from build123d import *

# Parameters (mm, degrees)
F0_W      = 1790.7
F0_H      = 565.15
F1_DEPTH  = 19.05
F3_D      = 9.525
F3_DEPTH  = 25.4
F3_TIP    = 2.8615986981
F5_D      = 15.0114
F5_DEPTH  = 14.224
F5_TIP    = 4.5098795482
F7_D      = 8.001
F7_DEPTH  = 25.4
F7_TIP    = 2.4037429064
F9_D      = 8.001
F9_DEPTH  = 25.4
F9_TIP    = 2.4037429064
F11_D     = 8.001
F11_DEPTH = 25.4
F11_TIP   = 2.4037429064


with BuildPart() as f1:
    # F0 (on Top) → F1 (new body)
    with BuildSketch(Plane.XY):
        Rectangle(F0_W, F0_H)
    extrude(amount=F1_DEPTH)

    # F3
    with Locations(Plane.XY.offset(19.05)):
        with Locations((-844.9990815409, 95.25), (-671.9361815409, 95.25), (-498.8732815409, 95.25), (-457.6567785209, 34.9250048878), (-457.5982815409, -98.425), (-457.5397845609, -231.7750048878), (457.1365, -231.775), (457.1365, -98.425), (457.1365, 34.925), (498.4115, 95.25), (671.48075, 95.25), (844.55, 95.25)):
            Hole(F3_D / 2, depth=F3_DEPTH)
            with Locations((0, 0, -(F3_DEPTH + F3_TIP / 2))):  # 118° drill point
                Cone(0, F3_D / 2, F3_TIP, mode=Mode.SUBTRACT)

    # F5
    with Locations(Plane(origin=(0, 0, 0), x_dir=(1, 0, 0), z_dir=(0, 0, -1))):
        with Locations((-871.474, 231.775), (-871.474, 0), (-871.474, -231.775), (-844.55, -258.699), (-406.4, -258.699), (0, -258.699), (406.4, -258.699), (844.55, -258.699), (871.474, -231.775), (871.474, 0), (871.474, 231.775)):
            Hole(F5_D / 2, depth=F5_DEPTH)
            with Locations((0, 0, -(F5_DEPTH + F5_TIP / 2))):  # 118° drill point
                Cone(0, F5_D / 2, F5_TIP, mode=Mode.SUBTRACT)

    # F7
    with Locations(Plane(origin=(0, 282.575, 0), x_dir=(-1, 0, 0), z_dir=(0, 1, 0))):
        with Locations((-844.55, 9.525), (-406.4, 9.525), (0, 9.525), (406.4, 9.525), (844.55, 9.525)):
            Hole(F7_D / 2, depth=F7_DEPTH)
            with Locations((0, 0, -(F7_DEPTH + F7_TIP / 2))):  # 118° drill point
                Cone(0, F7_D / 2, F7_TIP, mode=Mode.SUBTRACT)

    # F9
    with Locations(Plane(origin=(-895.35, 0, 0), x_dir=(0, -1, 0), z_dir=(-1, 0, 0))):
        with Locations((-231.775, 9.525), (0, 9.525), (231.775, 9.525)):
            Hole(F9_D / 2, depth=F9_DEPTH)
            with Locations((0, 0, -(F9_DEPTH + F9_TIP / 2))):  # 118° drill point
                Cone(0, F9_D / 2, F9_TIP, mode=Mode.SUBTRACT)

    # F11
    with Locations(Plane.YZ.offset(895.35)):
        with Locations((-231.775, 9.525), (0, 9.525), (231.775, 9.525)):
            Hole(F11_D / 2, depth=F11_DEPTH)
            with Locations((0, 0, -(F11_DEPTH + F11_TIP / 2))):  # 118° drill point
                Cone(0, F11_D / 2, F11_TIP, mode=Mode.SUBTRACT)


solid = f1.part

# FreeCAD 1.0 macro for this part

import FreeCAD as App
import Part
import Sketcher
from FreeCAD import Vector
Q = App.Units.Quantity

doc = App.newDocument("Part")
body = doc.addObject("PartDesign::Body", "Body")

sketch1 = body.newObject("Sketcher::SketchObject", "Sketch")
sketch1.AttachmentSupport = (doc.getObject("XY_Plane"), [""])
sketch1.MapMode = "FlatFace"
sketch1.addGeometry([
    Part.LineSegment(Vector(-895, 283, 0), Vector(-895, -283, 0)),
    Part.LineSegment(Vector(-895, -283, 0), Vector(895, -283, 0)),
    Part.LineSegment(Vector(895, -283, 0), Vector(895, 283, 0)),
    Part.LineSegment(Vector(895, 283, 0), Vector(-895, 283, 0)),
], False)
sketch1.addConstraint([
    Sketcher.Constraint("Coincident", 0, 2, 1, 1),
    Sketcher.Constraint("Coincident", 1, 2, 2, 1),
    Sketcher.Constraint("Coincident", 2, 2, 3, 1),
    Sketcher.Constraint("Coincident", 3, 2, 0, 1),
    Sketcher.Constraint("Vertical", 0),
    Sketcher.Constraint("Horizontal", 1),
    Sketcher.Constraint("Vertical", 2),
    Sketcher.Constraint("Horizontal", 3),
    Sketcher.Constraint("Symmetric", 0, 2, 2, 2, -1, 1),
    Sketcher.Constraint("DistanceX", 1, 1, 1, 2, Q("70.5 in")),
    Sketcher.Constraint("DistanceY", 0, 2, 0, 1, Q("22.25 in")),
])
pad1 = body.newObject("PartDesign::Pad", "Pad")
pad1.Profile = sketch1
pad1.Length = Q("0.75 in")

sketch2 = body.newObject("Sketcher::SketchObject", "Sketch001")
sketch2.AttachmentSupport = (doc.getObject("XY_Plane"), [""])
sketch2.MapMode = "FlatFace"
sketch2.AttachmentOffset = App.Placement(Vector(0, 0, 0.75 * 25.4), App.Rotation())
sketch2.addGeometry([
    Part.Circle(Vector(-845, 95.2, 0), Vector(0, 0, 1), 4.8),
    Part.Circle(Vector(-671.9, 95.2, 0), Vector(0, 0, 1), 4.8),
    Part.Circle(Vector(-498.9, 95.2, 0), Vector(0, 0, 1), 4.8),
    Part.Circle(Vector(-457.7, 34.9, 0), Vector(0, 0, 1), 4.8),
    Part.Circle(Vector(-457.6, -98.4, 0), Vector(0, 0, 1), 4.8),
    Part.Circle(Vector(-457.5, -231.8, 0), Vector(0, 0, 1), 4.8),
    Part.Circle(Vector(457.1, -231.8, 0), Vector(0, 0, 1), 4.8),
    Part.Circle(Vector(457.1, -98.4, 0), Vector(0, 0, 1), 4.8),
    Part.Circle(Vector(457.1, 34.9, 0), Vector(0, 0, 1), 4.8),
    Part.Circle(Vector(498.4, 95.2, 0), Vector(0, 0, 1), 4.8),
    Part.Circle(Vector(671.5, 95.2, 0), Vector(0, 0, 1), 4.8),
    Part.Circle(Vector(844.5, 95.2, 0), Vector(0, 0, 1), 4.8),
], False)
sketch2.addConstraint([
    Sketcher.Constraint("Equal", 0, 1),
    Sketcher.Constraint("Equal", 1, 2),
    Sketcher.Constraint("Equal", 2, 3),
    Sketcher.Constraint("Equal", 3, 4),
    Sketcher.Constraint("Equal", 4, 5),
    Sketcher.Constraint("Equal", 5, 6),
    Sketcher.Constraint("Equal", 6, 7),
    Sketcher.Constraint("Equal", 7, 8),
    Sketcher.Constraint("Equal", 8, 9),
    Sketcher.Constraint("Equal", 9, 10),
    Sketcher.Constraint("Equal", 10, 11),
    Sketcher.Constraint("Horizontal", 0, 3, 1, 3),
    Sketcher.Constraint("Horizontal", 1, 3, 2, 3),
    Sketcher.Constraint("Horizontal", 4, 3, 7, 3),
    Sketcher.Constraint("Horizontal", 2, 3, 9, 3),
    Sketcher.Constraint("Horizontal", 9, 3, 10, 3),
    Sketcher.Constraint("Horizontal", 10, 3, 11, 3),
    Sketcher.Constraint("Vertical", 6, 3, 7, 3),
    Sketcher.Constraint("Vertical", 7, 3, 8, 3),
    Sketcher.Constraint("Diameter", 0, Q("0.375 in")),
    Sketcher.Constraint("DistanceY", 6, 3, 3, 3, Q("10.5000002 in")),
    Sketcher.Constraint("DistanceY", 6, 3, 8, 3, Q("10.5 in")),
    Sketcher.Constraint("DistanceY", 5, 3, 8, 3, Q("10.5000002 in")),
    Sketcher.Constraint("DistanceY", -1, 1, 0, 3, Q("3.75 in")),
    Sketcher.Constraint("DistanceX", -1, 1, 11, 3, Q("33.25 in")),
    Sketcher.Constraint("DistanceY", 4, 3, 3, 3, Q("5.2500002 in")),
    Sketcher.Constraint("DistanceY", -1, 1, 3, 3, Q("1.3750002 in")),
    Sketcher.Constraint("DistanceX", 0, 3, 2, 3, Q("13.627 in")),
    Sketcher.Constraint("DistanceX", 2, 3, 4, 3, Q("1.625 in")),
    Sketcher.Constraint("DistanceX", 8, 3, 9, 3, Q("1.625 in")),
    Sketcher.Constraint("DistanceX", -1, 1, 6, 3, Q("17.9975 in")),
    Sketcher.Constraint("DistanceX", 0, 3, 1, 3, Q("6.8135 in")),
    Sketcher.Constraint("DistanceX", 0, 3, -1, 1, 844.999082),
    Sketcher.Constraint("DistanceX", 3, 3, -1, 1, 457.656779),
    Sketcher.Constraint("DistanceX", -1, 1, 10, 3, 671.48075),
    Sketcher.Constraint("DistanceX", 5, 3, -1, 1, 457.539785),
])
doc.recompute()
hole = body.newObject("PartDesign::Hole", "Hole")
hole.Profile = sketch2
hole.ThreadType = "None"
hole.Diameter = Q("0.375 in")
hole.DepthType = "Dimension"
hole.Depth = Q("1 in")
hole.DrillPoint = "Angled"
hole.DrillPointAngle = 118

sketch3 = body.newObject("Sketcher::SketchObject", "Sketch002")
sketch3.AttachmentSupport = (doc.getObject("XY_Plane"), [""])
sketch3.MapMode = "FlatFace"
sketch3.addGeometry([
    Part.Circle(Vector(-871, -232, 0), Vector(0, 0, 1), 8),
    Part.Circle(Vector(-871, 0, 0), Vector(0, 0, 1), 8),
    Part.Circle(Vector(-871, 232, 0), Vector(0, 0, 1), 8),
    Part.Circle(Vector(-845, 259, 0), Vector(0, 0, 1), 8),
    Part.Circle(Vector(-406, 259, 0), Vector(0, 0, 1), 8),
    Part.Circle(Vector(0, 259, 0), Vector(0, 0, 1), 8),
    Part.Circle(Vector(406, 259, 0), Vector(0, 0, 1), 8),
    Part.Circle(Vector(845, 259, 0), Vector(0, 0, 1), 8),
    Part.Circle(Vector(871, 232, 0), Vector(0, 0, 1), 8),
    Part.Circle(Vector(871, 0, 0), Vector(0, 0, 1), 8),
    Part.Circle(Vector(871, -232, 0), Vector(0, 0, 1), 8),
], False)
sketch3.addConstraint([
    Sketcher.Constraint("Equal", 0, 1),
    Sketcher.Constraint("Equal", 1, 2),
    Sketcher.Constraint("Equal", 2, 3),
    Sketcher.Constraint("Equal", 3, 4),
    Sketcher.Constraint("Equal", 4, 5),
    Sketcher.Constraint("Equal", 5, 6),
    Sketcher.Constraint("Equal", 6, 7),
    Sketcher.Constraint("Equal", 7, 8),
    Sketcher.Constraint("Equal", 8, 9),
    Sketcher.Constraint("Equal", 9, 10),
    Sketcher.Constraint("Symmetric", 0, 3, 8, 3, -1, 1),
    Sketcher.Constraint("Symmetric", 1, 3, 9, 3, -1, 1),
    Sketcher.Constraint("Symmetric", 2, 3, 10, 3, -1, 1),
    Sketcher.Constraint("Symmetric", 4, 3, 6, 3, -2),
    Sketcher.Constraint("Symmetric", 3, 3, 7, 3, -2),
    Sketcher.Constraint("Symmetric", 2, 3, 8, 3, -2),
    Sketcher.Constraint("PointOnObject", 1, 3, -1),
    Sketcher.Constraint("PointOnObject", 5, 3, -2),
    Sketcher.Constraint("Horizontal", 3, 3, 4, 3),
    Sketcher.Constraint("Horizontal", 4, 3, 5, 3),
    Sketcher.Constraint("Vertical", 0, 3, 1, 3),
    Sketcher.Constraint("Diameter", 0, Q("0.591 in")),
    Sketcher.Constraint("DistanceX", 4, 3, -1, 1, Q("16 in")),
    Sketcher.Constraint("DistanceX", 3, 3, 7, 3, Q("66.5 in")),
    Sketcher.Constraint("DistanceX", 0, 3, -1, 1, Q("34.31 in")),
    Sketcher.Constraint("DistanceY", 0, 3, 2, 3, Q("18.25 in")),
    Sketcher.Constraint("DistanceY", 2, 3, 3, 3, Q("1.06 in")),
])
doc.recompute()
hole2 = body.newObject("PartDesign::Hole", "Hole001")
hole2.Profile = sketch3
hole2.ThreadType = "None"
hole2.Diameter = Q("0.591 in")
hole2.DepthType = "Dimension"
hole2.Depth = Q("0.56 in")
hole2.DrillPoint = "Angled"
hole2.DrillPointAngle = 118
hole2.Reversed = True

sketch4 = body.newObject("Sketcher::SketchObject", "Sketch003")
sketch4.AttachmentSupport = (doc.getObject("XZ_Plane"), [""])
sketch4.MapMode = "FlatFace"
sketch4.AttachmentOffset = App.Placement(Vector(0, 0, -11.125 * 25.4), App.Rotation())
sketch4.addGeometry([
    Part.Circle(Vector(844.5, 9.5, 0), Vector(0, 0, 1), 4),
    Part.Circle(Vector(406.4, 9.5, 0), Vector(0, 0, 1), 4),
    Part.Circle(Vector(0, 9.5, 0), Vector(0, 0, 1), 4),
    Part.Circle(Vector(-406.4, 9.5, 0), Vector(0, 0, 1), 4),
    Part.Circle(Vector(-844.5, 9.5, 0), Vector(0, 0, 1), 4),
], False)
sketch4.addConstraint([
    Sketcher.Constraint("Equal", 0, 1),
    Sketcher.Constraint("Equal", 1, 2),
    Sketcher.Constraint("Equal", 2, 3),
    Sketcher.Constraint("Equal", 3, 4),
    Sketcher.Constraint("Symmetric", 1, 3, 3, 3, -2),
    Sketcher.Constraint("Symmetric", 0, 3, 4, 3, -2),
    Sketcher.Constraint("PointOnObject", 2, 3, -2),
    Sketcher.Constraint("Horizontal", 0, 3, 1, 3),
    Sketcher.Constraint("Horizontal", 1, 3, 2, 3),
    Sketcher.Constraint("Diameter", 0, Q("0.315 in")),
    Sketcher.Constraint("DistanceX", -1, 1, 1, 3, Q("16 in")),
    Sketcher.Constraint("DistanceX", 4, 3, 0, 3, Q("66.5 in")),
    Sketcher.Constraint("DistanceY", -1, 1, 0, 3, Q("0.375 in")),
])
doc.recompute()
hole3 = body.newObject("PartDesign::Hole", "Hole002")
hole3.Profile = sketch4
hole3.ThreadType = "None"
hole3.Diameter = Q("0.315 in")
hole3.DepthType = "Dimension"
hole3.Depth = Q("1 in")
hole3.DrillPoint = "Angled"
hole3.DrillPointAngle = 118
hole3.Reversed = True

sketch5 = body.newObject("Sketcher::SketchObject", "Sketch004")
sketch5.AttachmentSupport = (doc.getObject("YZ_Plane"), [""])
sketch5.MapMode = "FlatFace"
sketch5.AttachmentOffset = App.Placement(Vector(0, 0, -35.25 * 25.4), App.Rotation())
sketch5.addGeometry([
    Part.Circle(Vector(231.8, 9.5, 0), Vector(0, 0, 1), 4),
    Part.Circle(Vector(0, 9.5, 0), Vector(0, 0, 1), 4),
    Part.Circle(Vector(-231.8, 9.5, 0), Vector(0, 0, 1), 4),
], False)
sketch5.addConstraint([
    Sketcher.Constraint("Equal", 0, 1),
    Sketcher.Constraint("Equal", 1, 2),
    Sketcher.Constraint("Symmetric", 0, 3, 2, 3, -2),
    Sketcher.Constraint("PointOnObject", 1, 3, -2),
    Sketcher.Constraint("Horizontal", 0, 3, 1, 3),
    Sketcher.Constraint("Diameter", 0, Q("0.315 in")),
    Sketcher.Constraint("DistanceX", 2, 3, 0, 3, Q("18.25 in")),
    Sketcher.Constraint("DistanceY", -1, 1, 0, 3, Q("0.375 in")),
])
doc.recompute()
hole4 = body.newObject("PartDesign::Hole", "Hole003")
hole4.Profile = sketch5
hole4.ThreadType = "None"
hole4.Diameter = Q("0.315 in")
hole4.DepthType = "Dimension"
hole4.Depth = Q("1 in")
hole4.DrillPoint = "Angled"
hole4.DrillPointAngle = 118
hole4.Reversed = True

sketch6 = body.newObject("Sketcher::SketchObject", "Sketch005")
sketch6.AttachmentSupport = (doc.getObject("YZ_Plane"), [""])
sketch6.MapMode = "FlatFace"
sketch6.AttachmentOffset = App.Placement(Vector(0, 0, 35.25 * 25.4), App.Rotation())
sketch6.addGeometry([
    Part.Circle(Vector(-231.8, 9.5, 0), Vector(0, 0, 1), 4),
    Part.Circle(Vector(0, 9.5, 0), Vector(0, 0, 1), 4),
    Part.Circle(Vector(231.8, 9.5, 0), Vector(0, 0, 1), 4),
], False)
sketch6.addConstraint([
    Sketcher.Constraint("Equal", 0, 1),
    Sketcher.Constraint("Equal", 1, 2),
    Sketcher.Constraint("Symmetric", 0, 3, 2, 3, -2),
    Sketcher.Constraint("PointOnObject", 1, 3, -2),
    Sketcher.Constraint("Horizontal", 0, 3, 1, 3),
    Sketcher.Constraint("Diameter", 0, Q("0.315 in")),
    Sketcher.Constraint("DistanceX", 0, 3, 2, 3, Q("18.25 in")),
    Sketcher.Constraint("DistanceY", -1, 1, 0, 3, Q("0.375 in")),
])
doc.recompute()
hole5 = body.newObject("PartDesign::Hole", "Hole004")
hole5.Profile = sketch6
hole5.ThreadType = "None"
hole5.Diameter = Q("0.315 in")
hole5.DepthType = "Dimension"
hole5.Depth = Q("1 in")
hole5.DrillPoint = "Angled"
hole5.DrillPointAngle = 118

doc.recompute()
